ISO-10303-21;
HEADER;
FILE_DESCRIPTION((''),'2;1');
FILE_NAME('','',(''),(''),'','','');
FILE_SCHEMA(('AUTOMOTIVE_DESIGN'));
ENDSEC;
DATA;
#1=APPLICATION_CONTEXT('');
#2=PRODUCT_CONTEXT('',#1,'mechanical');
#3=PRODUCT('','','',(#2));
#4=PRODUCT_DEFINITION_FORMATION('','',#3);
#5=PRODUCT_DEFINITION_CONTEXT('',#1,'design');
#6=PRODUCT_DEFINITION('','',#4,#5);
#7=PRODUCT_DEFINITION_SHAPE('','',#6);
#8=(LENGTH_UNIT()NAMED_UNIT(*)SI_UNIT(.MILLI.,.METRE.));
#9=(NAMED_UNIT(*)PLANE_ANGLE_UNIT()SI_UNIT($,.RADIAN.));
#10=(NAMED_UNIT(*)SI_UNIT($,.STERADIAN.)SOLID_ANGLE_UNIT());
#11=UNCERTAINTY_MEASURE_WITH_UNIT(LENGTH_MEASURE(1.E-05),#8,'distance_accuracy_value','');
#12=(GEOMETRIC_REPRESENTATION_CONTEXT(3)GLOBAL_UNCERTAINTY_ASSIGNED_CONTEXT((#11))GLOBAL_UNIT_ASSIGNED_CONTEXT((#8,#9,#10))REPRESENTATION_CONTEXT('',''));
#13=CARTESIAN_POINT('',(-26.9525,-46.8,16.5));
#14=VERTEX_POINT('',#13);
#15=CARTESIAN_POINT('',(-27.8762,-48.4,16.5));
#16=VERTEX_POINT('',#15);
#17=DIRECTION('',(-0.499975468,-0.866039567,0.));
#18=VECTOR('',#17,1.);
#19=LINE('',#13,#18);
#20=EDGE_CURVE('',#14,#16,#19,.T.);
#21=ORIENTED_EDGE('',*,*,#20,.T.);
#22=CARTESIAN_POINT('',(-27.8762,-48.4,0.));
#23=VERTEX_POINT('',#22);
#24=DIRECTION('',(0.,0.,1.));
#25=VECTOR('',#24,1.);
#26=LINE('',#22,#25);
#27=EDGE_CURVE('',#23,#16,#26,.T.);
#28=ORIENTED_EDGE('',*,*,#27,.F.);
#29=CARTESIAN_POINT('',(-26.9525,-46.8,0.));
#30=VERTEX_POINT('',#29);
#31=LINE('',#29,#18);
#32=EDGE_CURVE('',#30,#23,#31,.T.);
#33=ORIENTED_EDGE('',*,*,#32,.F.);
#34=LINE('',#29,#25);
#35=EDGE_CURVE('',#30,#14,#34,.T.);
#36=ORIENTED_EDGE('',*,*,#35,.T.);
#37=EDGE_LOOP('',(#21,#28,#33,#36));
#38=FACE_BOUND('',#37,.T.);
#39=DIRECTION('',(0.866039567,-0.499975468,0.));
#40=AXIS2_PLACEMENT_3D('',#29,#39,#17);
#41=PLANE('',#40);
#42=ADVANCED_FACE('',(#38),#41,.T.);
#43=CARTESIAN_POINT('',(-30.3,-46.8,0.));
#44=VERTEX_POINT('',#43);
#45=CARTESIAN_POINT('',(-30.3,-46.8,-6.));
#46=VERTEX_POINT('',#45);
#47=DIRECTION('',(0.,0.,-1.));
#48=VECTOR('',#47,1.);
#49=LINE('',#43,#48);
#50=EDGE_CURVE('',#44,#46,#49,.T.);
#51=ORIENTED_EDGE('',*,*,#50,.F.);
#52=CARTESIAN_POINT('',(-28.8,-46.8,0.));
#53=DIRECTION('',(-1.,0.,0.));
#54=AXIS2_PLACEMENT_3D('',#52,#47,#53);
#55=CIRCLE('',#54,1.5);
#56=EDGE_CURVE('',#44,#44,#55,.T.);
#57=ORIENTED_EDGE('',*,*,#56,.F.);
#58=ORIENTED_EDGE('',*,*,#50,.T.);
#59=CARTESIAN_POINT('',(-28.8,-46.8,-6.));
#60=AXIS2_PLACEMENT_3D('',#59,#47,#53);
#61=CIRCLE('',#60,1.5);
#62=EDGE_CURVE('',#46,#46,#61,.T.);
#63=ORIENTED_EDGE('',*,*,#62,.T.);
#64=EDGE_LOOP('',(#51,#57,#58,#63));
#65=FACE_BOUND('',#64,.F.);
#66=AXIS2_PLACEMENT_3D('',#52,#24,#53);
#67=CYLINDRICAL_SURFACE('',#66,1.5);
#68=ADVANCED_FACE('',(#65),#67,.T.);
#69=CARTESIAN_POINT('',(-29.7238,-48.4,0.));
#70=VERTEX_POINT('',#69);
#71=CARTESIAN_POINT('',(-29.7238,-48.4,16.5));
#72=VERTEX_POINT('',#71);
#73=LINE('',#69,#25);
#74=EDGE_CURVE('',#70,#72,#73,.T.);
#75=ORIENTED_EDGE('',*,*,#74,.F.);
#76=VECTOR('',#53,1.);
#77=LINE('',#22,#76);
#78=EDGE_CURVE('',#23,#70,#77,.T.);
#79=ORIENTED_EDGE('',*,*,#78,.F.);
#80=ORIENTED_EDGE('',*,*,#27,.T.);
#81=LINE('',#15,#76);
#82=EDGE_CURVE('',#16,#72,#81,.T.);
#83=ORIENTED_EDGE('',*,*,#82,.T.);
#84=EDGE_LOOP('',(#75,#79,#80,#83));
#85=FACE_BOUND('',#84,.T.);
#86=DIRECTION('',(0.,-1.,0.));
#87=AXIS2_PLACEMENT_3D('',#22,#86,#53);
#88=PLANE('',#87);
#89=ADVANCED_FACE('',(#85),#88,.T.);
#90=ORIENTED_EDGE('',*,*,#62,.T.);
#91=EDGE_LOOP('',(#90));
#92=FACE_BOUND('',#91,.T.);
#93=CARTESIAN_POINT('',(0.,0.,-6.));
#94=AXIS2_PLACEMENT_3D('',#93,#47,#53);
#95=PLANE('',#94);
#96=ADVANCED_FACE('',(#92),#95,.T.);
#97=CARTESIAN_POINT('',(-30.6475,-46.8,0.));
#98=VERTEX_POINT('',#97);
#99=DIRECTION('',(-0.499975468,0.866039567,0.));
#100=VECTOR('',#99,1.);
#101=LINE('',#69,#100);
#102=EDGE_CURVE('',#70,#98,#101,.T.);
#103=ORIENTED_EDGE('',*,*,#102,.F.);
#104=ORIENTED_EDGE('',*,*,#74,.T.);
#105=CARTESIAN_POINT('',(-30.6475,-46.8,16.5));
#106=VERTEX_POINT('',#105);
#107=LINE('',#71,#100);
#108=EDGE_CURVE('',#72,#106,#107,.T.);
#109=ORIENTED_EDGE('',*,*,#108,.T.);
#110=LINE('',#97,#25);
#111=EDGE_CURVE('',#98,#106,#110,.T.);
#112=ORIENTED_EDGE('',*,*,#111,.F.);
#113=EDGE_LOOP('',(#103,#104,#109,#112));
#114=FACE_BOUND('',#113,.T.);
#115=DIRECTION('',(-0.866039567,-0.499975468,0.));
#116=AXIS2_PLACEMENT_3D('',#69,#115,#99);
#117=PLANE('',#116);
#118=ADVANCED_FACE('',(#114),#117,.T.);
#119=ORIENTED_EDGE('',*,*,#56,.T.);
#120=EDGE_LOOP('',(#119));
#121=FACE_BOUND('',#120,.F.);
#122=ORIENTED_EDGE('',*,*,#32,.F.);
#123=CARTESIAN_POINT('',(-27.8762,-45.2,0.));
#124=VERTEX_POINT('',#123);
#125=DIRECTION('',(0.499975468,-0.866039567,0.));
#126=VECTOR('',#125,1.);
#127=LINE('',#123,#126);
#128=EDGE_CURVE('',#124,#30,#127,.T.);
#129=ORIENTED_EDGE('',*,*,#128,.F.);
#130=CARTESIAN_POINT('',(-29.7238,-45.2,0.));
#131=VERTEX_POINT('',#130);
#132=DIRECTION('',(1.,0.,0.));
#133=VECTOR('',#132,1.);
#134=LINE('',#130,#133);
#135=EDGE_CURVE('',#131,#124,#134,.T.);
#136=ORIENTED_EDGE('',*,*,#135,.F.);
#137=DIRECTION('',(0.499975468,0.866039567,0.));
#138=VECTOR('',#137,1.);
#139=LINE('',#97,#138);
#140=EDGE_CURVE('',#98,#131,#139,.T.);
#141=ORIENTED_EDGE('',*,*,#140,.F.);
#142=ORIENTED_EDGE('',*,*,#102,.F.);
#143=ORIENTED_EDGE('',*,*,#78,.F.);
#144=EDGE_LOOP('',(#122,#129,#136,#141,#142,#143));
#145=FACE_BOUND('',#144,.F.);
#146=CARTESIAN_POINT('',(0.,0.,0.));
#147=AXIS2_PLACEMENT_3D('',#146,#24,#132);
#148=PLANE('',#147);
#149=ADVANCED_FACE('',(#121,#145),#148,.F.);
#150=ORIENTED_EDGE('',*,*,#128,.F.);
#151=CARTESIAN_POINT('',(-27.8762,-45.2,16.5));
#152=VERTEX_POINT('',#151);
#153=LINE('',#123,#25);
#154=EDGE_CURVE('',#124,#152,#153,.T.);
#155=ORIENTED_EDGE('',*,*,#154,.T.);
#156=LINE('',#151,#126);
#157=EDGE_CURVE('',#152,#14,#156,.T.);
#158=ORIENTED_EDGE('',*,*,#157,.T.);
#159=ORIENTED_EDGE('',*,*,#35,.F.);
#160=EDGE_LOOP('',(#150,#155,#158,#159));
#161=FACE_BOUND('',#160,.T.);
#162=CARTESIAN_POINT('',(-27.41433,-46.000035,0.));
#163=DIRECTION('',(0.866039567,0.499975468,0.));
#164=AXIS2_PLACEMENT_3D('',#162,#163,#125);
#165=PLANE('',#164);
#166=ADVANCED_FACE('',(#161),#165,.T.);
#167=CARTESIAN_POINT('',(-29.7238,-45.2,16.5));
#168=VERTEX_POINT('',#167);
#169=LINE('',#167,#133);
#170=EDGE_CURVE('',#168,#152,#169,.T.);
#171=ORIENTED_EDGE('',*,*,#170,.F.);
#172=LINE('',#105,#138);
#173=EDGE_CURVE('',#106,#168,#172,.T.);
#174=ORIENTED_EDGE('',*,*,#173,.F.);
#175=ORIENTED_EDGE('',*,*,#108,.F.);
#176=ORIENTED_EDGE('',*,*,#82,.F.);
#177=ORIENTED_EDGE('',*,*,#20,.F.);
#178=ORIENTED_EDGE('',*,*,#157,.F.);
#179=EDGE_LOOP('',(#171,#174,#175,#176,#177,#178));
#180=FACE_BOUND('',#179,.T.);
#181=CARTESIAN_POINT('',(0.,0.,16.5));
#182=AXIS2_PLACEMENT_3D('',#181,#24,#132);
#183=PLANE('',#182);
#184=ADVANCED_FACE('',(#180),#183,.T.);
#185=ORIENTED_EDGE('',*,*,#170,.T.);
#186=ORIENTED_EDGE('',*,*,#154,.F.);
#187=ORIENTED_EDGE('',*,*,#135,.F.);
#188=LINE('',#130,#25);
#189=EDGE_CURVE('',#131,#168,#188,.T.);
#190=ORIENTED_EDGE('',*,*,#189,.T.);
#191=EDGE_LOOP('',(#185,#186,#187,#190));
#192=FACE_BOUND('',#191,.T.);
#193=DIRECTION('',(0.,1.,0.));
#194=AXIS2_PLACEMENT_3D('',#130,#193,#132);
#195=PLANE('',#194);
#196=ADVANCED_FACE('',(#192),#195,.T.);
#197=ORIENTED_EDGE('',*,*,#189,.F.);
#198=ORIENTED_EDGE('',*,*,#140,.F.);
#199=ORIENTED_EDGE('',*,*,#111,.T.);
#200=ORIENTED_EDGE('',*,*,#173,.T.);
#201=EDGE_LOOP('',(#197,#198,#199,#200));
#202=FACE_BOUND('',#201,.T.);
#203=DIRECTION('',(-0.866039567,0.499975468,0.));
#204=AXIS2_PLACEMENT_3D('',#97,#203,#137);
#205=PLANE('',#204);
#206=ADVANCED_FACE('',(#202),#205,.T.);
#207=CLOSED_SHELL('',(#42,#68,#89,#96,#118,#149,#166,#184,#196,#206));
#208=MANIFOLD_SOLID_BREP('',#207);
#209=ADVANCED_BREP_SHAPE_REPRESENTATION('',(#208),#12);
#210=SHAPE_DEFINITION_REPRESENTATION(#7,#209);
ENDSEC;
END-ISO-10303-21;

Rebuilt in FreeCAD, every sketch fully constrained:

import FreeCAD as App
import Part
import Sketcher
from FreeCAD import Vector
Q = App.Units.Quantity

doc = App.newDocument("Part")
body = doc.addObject("PartDesign::Body", "Body")

sketch1 = doc.addObject("Sketcher::SketchObject", "Sketch")
body.addObject(sketch1)
sketch1.AttachmentSupport = (doc.XY_Plane, [""])
sketch1.MapMode = "FlatFace"
sketch1.addGeometry([
    Part.LineSegment(Vector(-26.9525, -46.8, 0), Vector(-27.8762, -45.2, 0)),
    Part.LineSegment(Vector(-27.8762, -45.2, 0), Vector(-29.7238, -45.2, 0)),
    Part.LineSegment(Vector(-29.7238, -45.2, 0), Vector(-30.6475, -46.8, 0)),
    Part.LineSegment(Vector(-30.6475, -46.8, 0), Vector(-29.7238, -48.4, 0)),
    Part.LineSegment(Vector(-29.7238, -48.4, 0), Vector(-27.8762, -48.4, 0)),
    Part.LineSegment(Vector(-27.8762, -48.4, 0), Vector(-26.9525, -46.8, 0)),
], False)
sketch1.addConstraint([
    Sketcher.Constraint("Coincident", 0, 2, 1, 1),
    Sketcher.Constraint("Coincident", 1, 2, 2, 1),
    Sketcher.Constraint("Coincident", 2, 2, 3, 1),
    Sketcher.Constraint("Coincident", 3, 2, 4, 1),
    Sketcher.Constraint("Coincident", 4, 2, 5, 1),
    Sketcher.Constraint("Coincident", 5, 2, 0, 1),
    Sketcher.Constraint("Horizontal", 1),
    Sketcher.Constraint("Horizontal", 4),
    Sketcher.Constraint("Parallel", 0, 3),
    Sketcher.Constraint("Parallel", 2, 5),
    Sketcher.Constraint("Horizontal", 2, 2, 5, 2),
    Sketcher.Constraint("Vertical", 1, 2, 3, 2),
    Sketcher.Constraint("Vertical", 0, 2, 4, 2),
    Sketcher.Constraint("DistanceY", 0, 2, -1, 1, Q("45.2 mm")),
    Sketcher.Constraint("DistanceY", 2, 2, -1, 1, Q("46.8 mm")),
    Sketcher.Constraint("DistanceX", 1, 2, 1, 1, Q("1.8476 mm")),
    Sketcher.Constraint("DistanceX", 2, 2, 5, 2, Q("3.695 mm")),
    Sketcher.Constraint("DistanceX", 0, 2, -1, 1, Q("27.8762 mm")),
])
pad1 = doc.addObject("PartDesign::Pad", "Pad")
body.addObject(pad1)
pad1.Profile = sketch1
pad1.Length = 16.5

sketch2 = doc.addObject("Sketcher::SketchObject", "Sketch001")
body.addObject(sketch2)
sketch2.AttachmentSupport = (doc.XY_Plane, [""])
sketch2.MapMode = "FlatFace"
sketch2.addGeometry(Part.Circle(Vector(-28.8, -46.8, 0), Vector(0, 0, 1), 1.5), False)
sketch2.addConstraint([
    Sketcher.Constraint("Diameter", 0, Q("3 mm")),
    Sketcher.Constraint("DistanceX", 0, 3, -1, 1, Q("28.8 mm")),
    Sketcher.Constraint("DistanceY", 0, 3, -1, 1, Q("46.8 mm")),
])
pad2 = doc.addObject("PartDesign::Pad", "Pad001")
body.addObject(pad2)
pad2.Profile = sketch2
pad2.Length = 6
pad2.Reversed = True

doc.recompute()
